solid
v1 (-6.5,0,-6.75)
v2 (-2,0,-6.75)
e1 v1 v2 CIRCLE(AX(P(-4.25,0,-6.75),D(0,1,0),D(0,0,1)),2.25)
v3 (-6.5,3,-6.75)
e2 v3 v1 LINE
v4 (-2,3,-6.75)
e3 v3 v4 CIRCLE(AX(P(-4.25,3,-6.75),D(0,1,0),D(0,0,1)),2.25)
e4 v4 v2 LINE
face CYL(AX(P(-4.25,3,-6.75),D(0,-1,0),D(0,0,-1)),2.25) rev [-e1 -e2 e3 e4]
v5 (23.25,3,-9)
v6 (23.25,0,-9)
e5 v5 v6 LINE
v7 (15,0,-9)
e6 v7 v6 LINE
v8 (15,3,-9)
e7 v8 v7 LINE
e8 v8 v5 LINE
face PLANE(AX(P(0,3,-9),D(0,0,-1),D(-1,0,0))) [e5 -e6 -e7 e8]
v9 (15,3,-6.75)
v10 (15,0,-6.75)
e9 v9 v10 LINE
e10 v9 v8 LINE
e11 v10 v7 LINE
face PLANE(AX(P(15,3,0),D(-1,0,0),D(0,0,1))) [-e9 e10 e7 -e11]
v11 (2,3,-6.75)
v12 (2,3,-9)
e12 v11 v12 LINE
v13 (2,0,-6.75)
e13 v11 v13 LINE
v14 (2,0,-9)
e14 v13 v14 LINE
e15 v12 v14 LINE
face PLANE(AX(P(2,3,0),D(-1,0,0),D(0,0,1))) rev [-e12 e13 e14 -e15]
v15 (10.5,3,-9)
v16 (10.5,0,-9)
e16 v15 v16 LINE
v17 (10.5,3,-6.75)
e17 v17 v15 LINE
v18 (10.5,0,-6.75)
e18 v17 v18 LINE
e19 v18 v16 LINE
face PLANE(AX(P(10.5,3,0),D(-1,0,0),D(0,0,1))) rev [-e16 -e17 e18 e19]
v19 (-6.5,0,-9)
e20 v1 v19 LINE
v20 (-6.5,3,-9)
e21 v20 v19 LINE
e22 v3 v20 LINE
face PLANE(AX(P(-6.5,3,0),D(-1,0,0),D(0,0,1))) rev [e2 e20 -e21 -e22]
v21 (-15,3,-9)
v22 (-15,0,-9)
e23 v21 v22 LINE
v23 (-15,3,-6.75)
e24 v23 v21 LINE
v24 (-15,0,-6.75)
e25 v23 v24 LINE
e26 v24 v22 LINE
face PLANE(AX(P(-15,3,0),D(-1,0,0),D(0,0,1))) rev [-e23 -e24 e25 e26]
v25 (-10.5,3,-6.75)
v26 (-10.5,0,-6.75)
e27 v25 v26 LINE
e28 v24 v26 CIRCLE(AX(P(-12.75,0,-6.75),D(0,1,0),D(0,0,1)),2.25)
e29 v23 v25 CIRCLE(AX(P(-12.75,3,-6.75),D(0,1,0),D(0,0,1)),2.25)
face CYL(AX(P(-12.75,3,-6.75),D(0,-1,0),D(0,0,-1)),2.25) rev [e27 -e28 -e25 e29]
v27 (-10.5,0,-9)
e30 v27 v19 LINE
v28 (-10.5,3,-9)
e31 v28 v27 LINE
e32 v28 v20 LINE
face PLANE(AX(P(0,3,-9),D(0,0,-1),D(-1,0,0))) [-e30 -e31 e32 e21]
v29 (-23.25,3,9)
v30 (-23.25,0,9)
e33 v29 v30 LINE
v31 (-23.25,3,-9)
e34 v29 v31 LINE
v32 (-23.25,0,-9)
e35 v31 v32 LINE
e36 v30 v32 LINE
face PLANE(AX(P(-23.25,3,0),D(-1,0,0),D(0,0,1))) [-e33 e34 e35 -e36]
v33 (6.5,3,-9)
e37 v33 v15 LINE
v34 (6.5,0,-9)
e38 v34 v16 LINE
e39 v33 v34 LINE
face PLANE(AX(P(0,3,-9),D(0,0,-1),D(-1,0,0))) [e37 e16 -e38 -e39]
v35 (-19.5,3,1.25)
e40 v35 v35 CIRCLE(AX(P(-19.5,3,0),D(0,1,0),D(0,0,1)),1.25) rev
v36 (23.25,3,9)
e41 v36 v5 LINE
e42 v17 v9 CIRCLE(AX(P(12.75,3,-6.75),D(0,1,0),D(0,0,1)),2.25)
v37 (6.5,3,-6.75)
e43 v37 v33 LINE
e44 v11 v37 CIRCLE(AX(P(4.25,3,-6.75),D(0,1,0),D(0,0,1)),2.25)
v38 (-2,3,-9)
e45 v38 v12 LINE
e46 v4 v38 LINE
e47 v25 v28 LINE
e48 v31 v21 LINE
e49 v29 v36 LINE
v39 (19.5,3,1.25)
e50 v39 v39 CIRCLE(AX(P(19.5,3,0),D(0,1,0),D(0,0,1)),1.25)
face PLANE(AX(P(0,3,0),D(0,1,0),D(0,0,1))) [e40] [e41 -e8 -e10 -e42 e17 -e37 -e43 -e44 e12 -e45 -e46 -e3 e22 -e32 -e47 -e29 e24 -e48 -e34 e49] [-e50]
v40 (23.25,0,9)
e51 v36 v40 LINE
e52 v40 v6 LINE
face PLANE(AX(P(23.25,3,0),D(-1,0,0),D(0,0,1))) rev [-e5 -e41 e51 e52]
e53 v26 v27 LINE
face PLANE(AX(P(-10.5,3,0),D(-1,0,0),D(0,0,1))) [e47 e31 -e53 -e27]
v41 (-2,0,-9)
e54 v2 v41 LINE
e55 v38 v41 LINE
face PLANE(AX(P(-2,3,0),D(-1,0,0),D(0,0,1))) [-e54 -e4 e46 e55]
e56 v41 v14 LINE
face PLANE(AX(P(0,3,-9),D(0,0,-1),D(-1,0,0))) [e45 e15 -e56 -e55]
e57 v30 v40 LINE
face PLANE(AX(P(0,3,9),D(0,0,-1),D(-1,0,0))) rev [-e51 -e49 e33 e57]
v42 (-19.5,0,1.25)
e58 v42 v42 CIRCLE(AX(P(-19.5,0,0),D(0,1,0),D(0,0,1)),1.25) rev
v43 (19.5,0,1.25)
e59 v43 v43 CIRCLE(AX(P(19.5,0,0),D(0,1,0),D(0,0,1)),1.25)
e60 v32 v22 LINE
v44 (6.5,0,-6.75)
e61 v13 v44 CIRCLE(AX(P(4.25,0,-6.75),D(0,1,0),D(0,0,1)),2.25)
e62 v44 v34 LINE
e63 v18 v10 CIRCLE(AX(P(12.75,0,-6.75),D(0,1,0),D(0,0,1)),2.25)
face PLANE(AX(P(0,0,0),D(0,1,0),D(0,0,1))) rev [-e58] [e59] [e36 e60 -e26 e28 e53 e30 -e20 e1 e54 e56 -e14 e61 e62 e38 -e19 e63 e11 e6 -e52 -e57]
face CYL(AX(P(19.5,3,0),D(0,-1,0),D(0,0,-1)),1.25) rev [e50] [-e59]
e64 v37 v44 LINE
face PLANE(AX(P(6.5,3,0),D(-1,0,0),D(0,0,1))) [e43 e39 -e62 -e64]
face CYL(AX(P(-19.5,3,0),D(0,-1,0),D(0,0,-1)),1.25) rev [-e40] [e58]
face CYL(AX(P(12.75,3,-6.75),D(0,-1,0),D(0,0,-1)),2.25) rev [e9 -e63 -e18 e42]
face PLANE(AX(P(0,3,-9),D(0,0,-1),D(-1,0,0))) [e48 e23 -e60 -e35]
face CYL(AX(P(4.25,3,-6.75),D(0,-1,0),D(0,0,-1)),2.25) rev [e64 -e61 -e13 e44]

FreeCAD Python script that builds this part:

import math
import FreeCAD as App
import Part
import Sketcher
from FreeCAD import Vector

doc = App.newDocument("Part")
body = doc.addObject("PartDesign::Body", "Body")

sketch1 = body.newObject("Sketcher::SketchObject", "Sketch")
sketch1.AttachmentSupport = (doc.getObject("XZ_Plane"), [""])
sketch1.MapMode = "FlatFace"
sketch1.addGeometry(Part.LineSegment(Vector(-23.2, -9, 0), Vector(-23.2, 9, 0)), False)
sketch1.addGeometry(Part.LineSegment(Vector(-23.2, 9, 0), Vector(23.2, 9, 0)), False)
sketch1.addGeometry(Part.LineSegment(Vector(23.2, 9, 0), Vector(23.2, -9, 0)), False)
sketch1.addGeometry(Part.LineSegment(Vector(23.2, -9, 0), Vector(15, -9, 0)), False)
sketch1.addGeometry(Part.LineSegment(Vector(15, -9, 0), Vector(15, -6.8, 0)), False)
sketch1.addGeometry(Part.ArcOfCircle(Part.Circle(Vector(12.8, -6.8, 0), Vector(0, 0, 1), 2.2), math.radians(0), math.radians(180)), False)
sketch1.addGeometry(Part.LineSegment(Vector(10.5, -6.8, 0), Vector(10.5, -9, 0)), False)
sketch1.addGeometry(Part.LineSegment(Vector(10.5, -9, 0), Vector(6.5, -9, 0)), False)
sketch1.addGeometry(Part.LineSegment(Vector(6.5, -9, 0), Vector(6.5, -6.8, 0)), False)
sketch1.addGeometry(Part.ArcOfCircle(Part.Circle(Vector(4.2, -6.8, 0), Vector(0, 0, 1), 2.2), math.radians(0), math.radians(180)), False)
sketch1.addGeometry(Part.LineSegment(Vector(2, -6.8, 0), Vector(2, -9, 0)), False)
sketch1.addGeometry(Part.LineSegment(Vector(2, -9, 0), Vector(-2, -9, 0)), False)
sketch1.addGeometry(Part.LineSegment(Vector(-2, -9, 0), Vector(-2, -6.8, 0)), False)
sketch1.addGeometry(Part.ArcOfCircle(Part.Circle(Vector(-4.2, -6.8, 0), Vector(0, 0, 1), 2.2), math.radians(0), math.radians(180)), False)
sketch1.addGeometry(Part.LineSegment(Vector(-6.5, -6.8, 0), Vector(-6.5, -9, 0)), False)
sketch1.addGeometry(Part.LineSegment(Vector(-6.5, -9, 0), Vector(-10.5, -9, 0)), False)
sketch1.addGeometry(Part.LineSegment(Vector(-10.5, -9, 0), Vector(-10.5, -6.8, 0)), False)
sketch1.addGeometry(Part.ArcOfCircle(Part.Circle(Vector(-12.8, -6.8, 0), Vector(0, 0, 1), 2.2), math.radians(0), math.radians(180)), False)
sketch1.addGeometry(Part.LineSegment(Vector(-15, -6.8, 0), Vector(-15, -9, 0)), False)
sketch1.addGeometry(Part.LineSegment(Vector(-15, -9, 0), Vector(-23.2, -9, 0)), False)
sketch1.addGeometry(Part.Circle(Vector(-19.5, 0, 0), Vector(0, 0, 1), 1.2), False)
sketch1.addGeometry(Part.Circle(Vector(19.5, 0, 0), Vector(0, 0, 1), 1.2), False)
sketch1.addConstraint(Sketcher.Constraint("Coincident", 0, 2, 1, 1))
sketch1.addConstraint(Sketcher.Constraint("Coincident", 1, 2, 2, 1))
sketch1.addConstraint(Sketcher.Constraint("Coincident", 2, 2, 3, 1))
sketch1.addConstraint(Sketcher.Constraint("Coincident", 3, 2, 4, 1))
sketch1.addConstraint(Sketcher.Constraint("Tangent", 4, 2, 5, 1))
sketch1.addConstraint(Sketcher.Constraint("Tangent", 5, 2, 6, 1))
sketch1.addConstraint(Sketcher.Constraint("Coincident", 6, 2, 7, 1))
sketch1.addConstraint(Sketcher.Constraint("Coincident", 7, 2, 8, 1))
sketch1.addConstraint(Sketcher.Constraint("Tangent", 8, 2, 9, 1))
sketch1.addConstraint(Sketcher.Constraint("Tangent", 9, 2, 10, 1))
sketch1.addConstraint(Sketcher.Constraint("Coincident", 10, 2, 11, 1))
sketch1.addConstraint(Sketcher.Constraint("Coincident", 11, 2, 12, 1))
sketch1.addConstraint(Sketcher.Constraint("Tangent", 12, 2, 13, 1))
sketch1.addConstraint(Sketcher.Constraint("Tangent", 13, 2, 14, 1))
sketch1.addConstraint(Sketcher.Constraint("Coincident", 14, 2, 15, 1))
sketch1.addConstraint(Sketcher.Constraint("Coincident", 15, 2, 16, 1))
sketch1.addConstraint(Sketcher.Constraint("Tangent", 16, 2, 17, 1))
sketch1.addConstraint(Sketcher.Constraint("Tangent", 17, 2, 18, 1))
sketch1.addConstraint(Sketcher.Constraint("Coincident", 18, 2, 19, 1))
sketch1.addConstraint(Sketcher.Constraint("Coincident", 19, 2, 0, 1))
sketch1.addConstraint(Sketcher.Constraint("Vertical", 0))
sketch1.addConstraint(Sketcher.Constraint("Horizontal", 1))
sketch1.addConstraint(Sketcher.Constraint("Vertical", 2))
sketch1.addConstraint(Sketcher.Constraint("Horizontal", 3))
sketch1.addConstraint(Sketcher.Constraint("Vertical", 4))
sketch1.addConstraint(Sketcher.Constraint("Vertical", 6))
sketch1.addConstraint(Sketcher.Constraint("Horizontal", 7))
sketch1.addConstraint(Sketcher.Constraint("Vertical", 8))
sketch1.addConstraint(Sketcher.Constraint("Vertical", 10))
sketch1.addConstraint(Sketcher.Constraint("Horizontal", 11))
sketch1.addConstraint(Sketcher.Constraint("Vertical", 12))
sketch1.addConstraint(Sketcher.Constraint("Vertical", 14))
sketch1.addConstraint(Sketcher.Constraint("Horizontal", 15))
sketch1.addConstraint(Sketcher.Constraint("Vertical", 16))
sketch1.addConstraint(Sketcher.Constraint("Vertical", 18))
sketch1.addConstraint(Sketcher.Constraint("Horizontal", 19))
sketch1.addConstraint(Sketcher.Constraint("Equal", 5, 9))
sketch1.addConstraint(Sketcher.Constraint("Equal", 9, 13))
sketch1.addConstraint(Sketcher.Constraint("Equal", 13, 17))
sketch1.addConstraint(Sketcher.Constraint("Equal", 20, 21))
sketch1.addConstraint(Sketcher.Constraint("Symmetric", 20, 3, 21, 3, -1, 1))
sketch1.addConstraint(Sketcher.Constraint("Symmetric", 0, 2, 2, 2, -1, 1))
sketch1.addConstraint(Sketcher.Constraint("Symmetric", 9, 3, 13, 3, -2))
sketch1.addConstraint(Sketcher.Constraint("Symmetric", 5, 3, 17, 3, -2))
sketch1.addConstraint(Sketcher.Constraint("PointOnObject", 20, 3, -1))
sketch1.addConstraint(Sketcher.Constraint("Horizontal", 5, 3, 9, 3))
sketch1.addConstraint(Sketcher.Constraint("Horizontal", 3, 2, 6, 2))
sketch1.addConstraint(Sketcher.Constraint("Horizontal", 7, 2, 10, 2))
sketch1.addConstraint(Sketcher.Constraint("Horizontal", 11, 2, 14, 2))
sketch1.addConstraint(Sketcher.Constraint("Horizontal", 15, 2, 18, 2))
sketch1.addConstraint(Sketcher.Constraint("Equal", 7, 11))
sketch1.addConstraint(Sketcher.Constraint("Diameter", 20, 2.5))
sketch1.addConstraint(Sketcher.Constraint("DistanceX", 7, 2, 7, 1, 4.0))
sketch1.addConstraint(Sketcher.Constraint("DistanceY", 0, 1, 0, 2, 18.0))
sketch1.addConstraint(Sketcher.Constraint("Radius", 5, 2.25))
sketch1.addConstraint(Sketcher.Constraint("DistanceX", 1, 1, 1, 2, 46.5))
sketch1.addConstraint(Sketcher.Constraint("DistanceX", 20, 3, 21, 3, 39.0))
sketch1.addConstraint(Sketcher.Constraint("DistanceY", 4, 1, 4, 2, 2.25))
pad1 = body.newObject("PartDesign::Pad", "Pad")
pad1.Profile = sketch1
pad1.Length = 3
pad1.Reversed = True

doc.recompute()
